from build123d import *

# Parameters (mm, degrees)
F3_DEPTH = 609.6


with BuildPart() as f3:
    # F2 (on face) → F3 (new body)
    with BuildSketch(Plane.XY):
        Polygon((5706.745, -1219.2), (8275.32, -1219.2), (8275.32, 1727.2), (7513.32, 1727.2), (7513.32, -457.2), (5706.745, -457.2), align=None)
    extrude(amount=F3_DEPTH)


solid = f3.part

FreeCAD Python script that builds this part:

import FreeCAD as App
import Part
import Sketcher

V = App.Vector
Q = App.Units.Quantity


def add_polygon(sketch, points):
    """Adds a closed chain of lines whose ends are joined by coincident constraints."""
    first, n = sketch.GeometryCount, len(points)
    for a, b in zip(points, points[1:] + points[:1]):
        sketch.addGeometry(Part.LineSegment(App.Vector(*a, 0), App.Vector(*b, 0)), False)
    for i in range(n):
        sketch.addConstraint(Sketcher.Constraint("Coincident", first + i, 2, first + (i + 1) % n, 1))

doc = App.newDocument("Part")
body = doc.addObject("PartDesign::Body", "Body")

# Sketch on XY plane
sketch1 = doc.addObject("Sketcher::SketchObject", "Sketch")
body.addObject(sketch1)
sketch1.AttachmentSupport = (doc.XY_Plane, [""])
sketch1.MapMode = "FlatFace"
add_polygon(sketch1, [(5707, -1219), (8275, -1219), (8275, 1727), (7513, 1727), (7513, -457), (5707, -457)])  # lines 0-5
sketch1.addConstraint([
    Sketcher.Constraint("Horizontal", 0),
    Sketcher.Constraint("Vertical", 1),
    Sketcher.Constraint("Horizontal", 2),
    Sketcher.Constraint("Vertical", 3),
    Sketcher.Constraint("Horizontal", 4),
    Sketcher.Constraint("Vertical", 5),
    Sketcher.Constraint("Equal", 2, 5),
    Sketcher.Constraint("DistanceX", 2, 2, 2, 1, Q("30 in")),
    Sketcher.Constraint("DistanceY", 1, 1, 1, 2, Q("116 in")),
    Sketcher.Constraint("DistanceY", 0, 2, -1, 1, Q("48 in")),
    Sketcher.Constraint("DistanceX", -1, 1, 0, 2, Q("325.8 in")),
    Sketcher.Constraint("DistanceX", 0, 1, 0, 2, Q("101.125 in")),
])
pad1 = doc.addObject("PartDesign::Pad", "Pad")
body.addObject(pad1)
pad1.Profile = sketch1
pad1.Length = Q("24 in")

doc.recompute()
